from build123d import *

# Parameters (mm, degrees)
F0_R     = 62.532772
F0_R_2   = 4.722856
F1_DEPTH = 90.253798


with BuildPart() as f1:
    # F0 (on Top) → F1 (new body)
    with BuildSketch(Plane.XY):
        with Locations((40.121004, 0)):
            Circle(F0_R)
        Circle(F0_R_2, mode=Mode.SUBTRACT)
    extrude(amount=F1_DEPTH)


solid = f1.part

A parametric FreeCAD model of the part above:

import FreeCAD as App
import Part
import Sketcher

V = App.Vector
Q = App.Units.Quantity

doc = App.newDocument("Part")
body = doc.addObject("PartDesign::Body", "Body")

# Sketch on XY plane
sketch1 = body.newObject("Sketcher::SketchObject", "Sketch")
sketch1.AttachmentSupport = (doc.getObject("XY_Plane"), [""])
sketch1.MapMode = "FlatFace"
sketch1.addGeometry([
    Part.Circle(V(40.121004, 0, 0), V(0, 0, 1), 62.532772),
    Part.Circle(V(0, 0, 0), V(0, 0, 1), 4.722856),
], False)
sketch1.addConstraint([
    Sketcher.Constraint("Coincident", 1, 3, -1, 1),
    Sketcher.Constraint("PointOnObject", 0, 3, -1),
    Sketcher.Constraint("Diameter", 0, Q("125.065544 mm")),
    Sketcher.Constraint("Diameter", 1, Q("9.445712 mm")),
    Sketcher.Constraint("DistanceX", -1, 1, 0, 3, Q("40.121004 mm")),
])
pad1 = body.newObject("PartDesign::Pad", "Pad")
pad1.Profile = sketch1
pad1.Length = 90.253798

doc.recompute()
